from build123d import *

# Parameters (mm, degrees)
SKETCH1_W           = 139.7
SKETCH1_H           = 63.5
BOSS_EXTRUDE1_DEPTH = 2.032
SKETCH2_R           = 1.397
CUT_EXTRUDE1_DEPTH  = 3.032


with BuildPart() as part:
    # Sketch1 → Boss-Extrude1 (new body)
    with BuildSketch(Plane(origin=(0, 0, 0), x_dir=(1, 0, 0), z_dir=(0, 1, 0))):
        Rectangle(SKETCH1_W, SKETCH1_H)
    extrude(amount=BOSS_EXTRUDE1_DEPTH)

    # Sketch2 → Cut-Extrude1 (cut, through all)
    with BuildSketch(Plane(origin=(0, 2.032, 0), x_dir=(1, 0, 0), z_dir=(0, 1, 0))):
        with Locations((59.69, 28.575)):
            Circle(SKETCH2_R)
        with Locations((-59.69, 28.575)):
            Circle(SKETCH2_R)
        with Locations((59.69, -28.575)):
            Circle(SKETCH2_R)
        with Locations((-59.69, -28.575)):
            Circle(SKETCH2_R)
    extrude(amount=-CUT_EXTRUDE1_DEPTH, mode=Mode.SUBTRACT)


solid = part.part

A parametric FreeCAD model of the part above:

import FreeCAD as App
import Part
import Sketcher
Q = App.Units.Quantity

doc = App.newDocument("Part")
body = doc.addObject("PartDesign::Body", "Body")

sketch1 = body.newObject("Sketcher::SketchObject", "Sketch")
sketch1.AttachmentSupport = (doc.getObject("XZ_Plane"), [""])
sketch1.MapMode = "FlatFace"
sketch1.addGeometry([
    Part.LineSegment(App.Vector(-70, -32, 0), App.Vector(-70, 32, 0)),
    Part.LineSegment(App.Vector(-70, 32, 0), App.Vector(70, 32, 0)),
    Part.LineSegment(App.Vector(70, 32, 0), App.Vector(70, -32, 0)),
    Part.LineSegment(App.Vector(70, -32, 0), App.Vector(-70, -32, 0)),
], False)
sketch1.addConstraint([
    Sketcher.Constraint("Coincident", 0, 2, 1, 1),
    Sketcher.Constraint("Coincident", 1, 2, 2, 1),
    Sketcher.Constraint("Coincident", 2, 2, 3, 1),
    Sketcher.Constraint("Coincident", 3, 2, 0, 1),
    Sketcher.Constraint("Vertical", 0),
    Sketcher.Constraint("Horizontal", 1),
    Sketcher.Constraint("Vertical", 2),
    Sketcher.Constraint("Horizontal", 3),
    Sketcher.Constraint("Symmetric", 0, 2, 2, 2, -1, 1),
    Sketcher.Constraint("DistanceX", 1, 1, 1, 2, Q("5.5 in")),
    Sketcher.Constraint("DistanceY", 0, 1, 0, 2, Q("2.5 in")),
])
pad1 = body.newObject("PartDesign::Pad", "Pad")
pad1.Profile = sketch1
pad1.Length = Q("0.08 in")
pad1.Reversed = True

sketch2 = body.newObject("Sketcher::SketchObject", "Sketch001")
sketch2.AttachmentSupport = (doc.getObject("XZ_Plane"), [""])
sketch2.MapMode = "FlatFace"
sketch2.AttachmentOffset = App.Placement(App.Vector(0, 0, -0.08 * 25.4), App.Rotation())
sketch2.addGeometry([
    Part.Circle(App.Vector(59.7, -28.6, 0), App.Vector(0, 0, 1), 1.4),
    Part.Circle(App.Vector(-59.7, -28.6, 0), App.Vector(0, 0, 1), 1.4),
    Part.Circle(App.Vector(59.7, 28.6, 0), App.Vector(0, 0, 1), 1.4),
    Part.Circle(App.Vector(-59.7, 28.6, 0), App.Vector(0, 0, 1), 1.4),
], False)
sketch2.addConstraint([
    Sketcher.Constraint("Equal", 0, 1),
    Sketcher.Constraint("Equal", 1, 2),
    Sketcher.Constraint("Equal", 2, 3),
    Sketcher.Constraint("Symmetric", 1, 3, 2, 3, -1, 1),
    Sketcher.Constraint("Symmetric", 0, 3, 3, 3, -1, 1),
    Sketcher.Constraint("Symmetric", 0, 3, 1, 3, -2),
    Sketcher.Constraint("Diameter", 0, Q("0.11 in")),
    Sketcher.Constraint("DistanceX", 1, 3, 0, 3, Q("4.7 in")),
    Sketcher.Constraint("DistanceY", 0, 3, 2, 3, Q("2.25 in")),
])
pocket1 = body.newObject("PartDesign::Pocket", "Pocket")
pocket1.Profile = sketch2
pocket1.Type = "ThroughAll"
pocket1.Reversed = True

doc.recompute()
